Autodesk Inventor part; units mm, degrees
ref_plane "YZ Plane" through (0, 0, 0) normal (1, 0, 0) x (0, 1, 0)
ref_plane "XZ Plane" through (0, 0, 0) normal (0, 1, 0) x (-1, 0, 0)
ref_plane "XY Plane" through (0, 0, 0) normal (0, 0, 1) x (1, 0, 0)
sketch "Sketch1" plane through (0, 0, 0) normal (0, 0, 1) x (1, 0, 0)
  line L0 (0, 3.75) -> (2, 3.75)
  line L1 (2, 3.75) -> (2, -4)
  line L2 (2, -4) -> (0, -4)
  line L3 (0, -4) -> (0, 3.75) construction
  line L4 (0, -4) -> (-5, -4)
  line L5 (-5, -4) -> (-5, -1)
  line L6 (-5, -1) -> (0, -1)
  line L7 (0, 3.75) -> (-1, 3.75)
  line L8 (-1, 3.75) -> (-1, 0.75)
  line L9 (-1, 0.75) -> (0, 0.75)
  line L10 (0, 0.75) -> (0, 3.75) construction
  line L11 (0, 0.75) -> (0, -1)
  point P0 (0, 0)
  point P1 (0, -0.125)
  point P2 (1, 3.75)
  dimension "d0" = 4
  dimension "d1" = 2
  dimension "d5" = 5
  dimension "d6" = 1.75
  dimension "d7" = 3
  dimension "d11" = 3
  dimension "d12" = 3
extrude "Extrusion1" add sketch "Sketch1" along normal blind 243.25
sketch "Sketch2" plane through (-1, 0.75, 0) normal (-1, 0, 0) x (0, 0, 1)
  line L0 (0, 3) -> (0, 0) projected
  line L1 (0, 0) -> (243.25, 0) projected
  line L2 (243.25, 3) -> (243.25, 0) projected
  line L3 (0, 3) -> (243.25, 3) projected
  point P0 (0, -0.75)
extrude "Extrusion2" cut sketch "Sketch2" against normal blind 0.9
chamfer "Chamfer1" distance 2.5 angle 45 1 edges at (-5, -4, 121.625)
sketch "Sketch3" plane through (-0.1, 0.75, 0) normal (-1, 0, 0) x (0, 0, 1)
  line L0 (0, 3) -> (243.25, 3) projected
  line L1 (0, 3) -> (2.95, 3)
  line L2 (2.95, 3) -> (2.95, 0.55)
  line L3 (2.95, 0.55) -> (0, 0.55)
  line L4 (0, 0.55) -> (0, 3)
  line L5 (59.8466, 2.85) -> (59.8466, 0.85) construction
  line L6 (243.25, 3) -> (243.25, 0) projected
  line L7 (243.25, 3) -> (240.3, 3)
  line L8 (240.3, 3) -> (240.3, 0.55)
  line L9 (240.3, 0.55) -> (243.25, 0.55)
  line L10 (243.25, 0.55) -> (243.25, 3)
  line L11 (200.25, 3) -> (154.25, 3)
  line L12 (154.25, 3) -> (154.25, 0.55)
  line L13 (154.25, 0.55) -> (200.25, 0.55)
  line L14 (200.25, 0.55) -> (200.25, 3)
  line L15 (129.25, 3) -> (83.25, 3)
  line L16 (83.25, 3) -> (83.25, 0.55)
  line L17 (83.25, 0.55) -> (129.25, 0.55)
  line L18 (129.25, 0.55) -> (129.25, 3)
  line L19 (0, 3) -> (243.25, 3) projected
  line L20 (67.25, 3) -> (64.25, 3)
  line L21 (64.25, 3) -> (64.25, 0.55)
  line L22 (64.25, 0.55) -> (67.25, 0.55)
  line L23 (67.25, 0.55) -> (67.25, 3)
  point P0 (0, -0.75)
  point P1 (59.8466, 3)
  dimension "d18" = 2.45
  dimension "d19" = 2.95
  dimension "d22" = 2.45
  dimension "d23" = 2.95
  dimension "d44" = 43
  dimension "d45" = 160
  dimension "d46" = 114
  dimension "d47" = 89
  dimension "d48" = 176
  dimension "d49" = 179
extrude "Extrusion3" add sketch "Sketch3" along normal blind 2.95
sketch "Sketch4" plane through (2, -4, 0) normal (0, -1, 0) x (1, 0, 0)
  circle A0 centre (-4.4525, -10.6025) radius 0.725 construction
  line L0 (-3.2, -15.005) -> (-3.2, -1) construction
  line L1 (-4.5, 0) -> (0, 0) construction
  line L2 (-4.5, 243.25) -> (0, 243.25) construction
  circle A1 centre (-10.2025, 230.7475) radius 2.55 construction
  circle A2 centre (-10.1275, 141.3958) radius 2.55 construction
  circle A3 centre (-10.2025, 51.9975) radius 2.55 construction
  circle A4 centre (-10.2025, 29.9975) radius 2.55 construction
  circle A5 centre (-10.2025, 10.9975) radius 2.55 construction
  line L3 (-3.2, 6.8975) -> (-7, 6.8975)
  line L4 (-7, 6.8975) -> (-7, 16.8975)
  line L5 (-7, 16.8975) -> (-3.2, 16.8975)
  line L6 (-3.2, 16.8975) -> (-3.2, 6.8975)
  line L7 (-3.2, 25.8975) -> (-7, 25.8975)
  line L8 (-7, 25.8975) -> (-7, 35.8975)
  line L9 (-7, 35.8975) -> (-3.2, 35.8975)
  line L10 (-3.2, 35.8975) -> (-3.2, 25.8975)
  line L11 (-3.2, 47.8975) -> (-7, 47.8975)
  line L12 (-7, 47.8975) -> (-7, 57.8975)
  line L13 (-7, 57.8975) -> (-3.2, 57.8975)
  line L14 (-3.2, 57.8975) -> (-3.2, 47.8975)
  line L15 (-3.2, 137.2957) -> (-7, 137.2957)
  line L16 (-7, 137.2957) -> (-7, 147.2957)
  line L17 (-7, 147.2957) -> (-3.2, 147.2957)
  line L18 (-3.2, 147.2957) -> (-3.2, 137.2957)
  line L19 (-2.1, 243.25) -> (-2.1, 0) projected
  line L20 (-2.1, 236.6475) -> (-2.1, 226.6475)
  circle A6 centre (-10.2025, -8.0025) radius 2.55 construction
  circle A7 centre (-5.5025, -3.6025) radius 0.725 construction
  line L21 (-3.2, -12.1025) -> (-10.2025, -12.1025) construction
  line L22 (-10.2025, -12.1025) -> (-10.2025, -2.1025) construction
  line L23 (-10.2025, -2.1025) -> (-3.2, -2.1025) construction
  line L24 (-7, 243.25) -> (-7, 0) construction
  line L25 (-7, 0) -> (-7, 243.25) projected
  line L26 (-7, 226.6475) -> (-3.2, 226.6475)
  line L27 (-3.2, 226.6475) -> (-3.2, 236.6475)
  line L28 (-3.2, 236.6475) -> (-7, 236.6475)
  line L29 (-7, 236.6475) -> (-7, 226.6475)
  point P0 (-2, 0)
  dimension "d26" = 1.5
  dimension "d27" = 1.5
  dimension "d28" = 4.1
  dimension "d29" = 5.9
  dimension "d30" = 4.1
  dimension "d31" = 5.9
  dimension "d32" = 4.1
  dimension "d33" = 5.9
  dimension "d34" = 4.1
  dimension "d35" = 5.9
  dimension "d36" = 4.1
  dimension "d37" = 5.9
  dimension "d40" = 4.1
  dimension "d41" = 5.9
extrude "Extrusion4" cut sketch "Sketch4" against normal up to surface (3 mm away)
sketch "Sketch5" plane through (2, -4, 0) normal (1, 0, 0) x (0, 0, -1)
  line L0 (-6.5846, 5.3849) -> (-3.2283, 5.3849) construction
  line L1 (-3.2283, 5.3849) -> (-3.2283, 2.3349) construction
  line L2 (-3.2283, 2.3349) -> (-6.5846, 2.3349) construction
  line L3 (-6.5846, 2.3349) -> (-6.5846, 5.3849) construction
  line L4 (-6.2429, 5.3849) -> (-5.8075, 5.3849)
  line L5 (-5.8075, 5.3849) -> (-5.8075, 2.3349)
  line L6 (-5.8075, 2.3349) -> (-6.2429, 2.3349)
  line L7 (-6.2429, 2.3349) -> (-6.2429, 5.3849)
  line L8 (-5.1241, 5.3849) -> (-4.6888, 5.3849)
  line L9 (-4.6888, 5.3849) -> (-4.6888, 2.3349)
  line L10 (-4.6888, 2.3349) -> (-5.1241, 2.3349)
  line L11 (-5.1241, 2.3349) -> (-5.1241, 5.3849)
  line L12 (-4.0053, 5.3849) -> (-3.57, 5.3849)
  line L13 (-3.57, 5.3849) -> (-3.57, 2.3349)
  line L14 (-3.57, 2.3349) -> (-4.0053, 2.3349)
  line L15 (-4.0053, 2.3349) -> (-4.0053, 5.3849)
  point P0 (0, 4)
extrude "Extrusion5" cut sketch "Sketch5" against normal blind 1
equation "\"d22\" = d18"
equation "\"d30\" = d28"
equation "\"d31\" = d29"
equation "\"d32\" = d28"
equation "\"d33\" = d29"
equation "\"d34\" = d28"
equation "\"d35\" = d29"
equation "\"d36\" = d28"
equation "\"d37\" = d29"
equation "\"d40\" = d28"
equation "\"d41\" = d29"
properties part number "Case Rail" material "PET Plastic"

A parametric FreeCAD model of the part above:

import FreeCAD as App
import Part
import Sketcher

V = App.Vector


def edges_at(feature, points):
    """Names of the edges that pass closest to the given points."""
    edges = feature.Shape.Edges
    near = lambda p: min(range(len(edges)), key=lambda i: edges[i].distToShape(Part.Vertex(*p))[0])
    return sorted({f"Edge{near(p) + 1}" for p in points})


def add_polygon(sketch, points):
    """Adds a closed chain of lines whose ends are joined by coincident constraints."""
    first, n = sketch.GeometryCount, len(points)
    for a, b in zip(points, points[1:] + points[:1]):
        sketch.addGeometry(Part.LineSegment(App.Vector(*a, 0), App.Vector(*b, 0)), False)
    for i in range(n):
        sketch.addConstraint(Sketcher.Constraint("Coincident", first + i, 2, first + (i + 1) % n, 1))

doc = App.newDocument("Part")
body = doc.addObject("PartDesign::Body", "Body")

# Sketch on XY plane
sketch1 = body.newObject("Sketcher::SketchObject", "Sketch")
sketch1.AttachmentSupport = (doc.getObject("XY_Plane"), [""])
sketch1.MapMode = "FlatFace"
add_polygon(sketch1, [(2, 3.8), (-1, 3.8), (-1, 0.8), (0, 0.8), (0, -1), (-5, -1), (-5, -4), (2, -4)])  # lines 0-7
sketch1.addConstraint([
    Sketcher.Constraint("Horizontal", 0),
    Sketcher.Constraint("Vertical", 1),
    Sketcher.Constraint("Horizontal", 2),
    Sketcher.Constraint("Vertical", 3),
    Sketcher.Constraint("Horizontal", 4),
    Sketcher.Constraint("Vertical", 5),
    Sketcher.Constraint("Horizontal", 6),
    Sketcher.Constraint("Vertical", 7),
    Sketcher.Constraint("PointOnObject", 2, 2, -2),
    Sketcher.Constraint("Equal", 0, 1),
    Sketcher.Constraint("Equal", 1, 5),
    Sketcher.Constraint("DistanceX", 0, 2, 0, 1, 3.0),
    Sketcher.Constraint("DistanceX", 4, 2, 4, 1, 5.0),
    Sketcher.Constraint("DistanceY", 5, 2, -1, 1, 4.0),
    Sketcher.Constraint("DistanceX", -1, 1, 6, 2, 2.0),
    Sketcher.Constraint("DistanceY", 3, 2, 3, 1, 1.75),
])
pad1 = body.newObject("PartDesign::Pad", "Pad")
pad1.Profile = sketch1
pad1.Length = 243.25

# Sketch on YZ plane
sketch2 = body.newObject("Sketcher::SketchObject", "Sketch001")
sketch2.AttachmentSupport = (doc.getObject("YZ_Plane"), [""])
sketch2.MapMode = "FlatFace"
sketch2.AttachmentOffset = App.Placement(V(0, 0, -1), App.Rotation())
add_polygon(sketch2, [(3.8, 243.2), (3.8, 0), (0.8, 0), (0.8, 243.2)])  # lines 0-3
sketch2.addConstraint([
    Sketcher.Constraint("Vertical", 0),
    Sketcher.Constraint("Horizontal", 1),
    Sketcher.Constraint("Vertical", 2),
    Sketcher.Constraint("Horizontal", 3),
    Sketcher.Constraint("PointOnObject", 0, 2, -1),
    Sketcher.Constraint("DistanceX", 1, 2, 1, 1, 3.0),
    Sketcher.Constraint("DistanceY", 0, 2, 0, 1, 243.25),
    Sketcher.Constraint("DistanceX", -1, 1, 0, 2, 3.75),
])
pocket1 = body.newObject("PartDesign::Pocket", "Pocket")
pocket1.Profile = sketch2
pocket1.Length = 0.9
pocket1.Reversed = True
doc.recompute()

chamfer = body.newObject("PartDesign::Chamfer", "Chamfer")
chamfer.Base = (pocket1, edges_at(pocket1, [(-5, -4, 121.625)]))
chamfer.Size = 2.5

# Sketch on YZ plane
sketch3 = body.newObject("Sketcher::SketchObject", "Sketch002")
sketch3.AttachmentSupport = (doc.getObject("YZ_Plane"), [""])
sketch3.MapMode = "FlatFace"
sketch3.AttachmentOffset = App.Placement(V(0, 0, -0.1), App.Rotation())
add_polygon(sketch3, [(3.8, 243.2), (3.8, 240.3), (1.3, 240.3), (1.3, 243.2)])  # lines 0-3
add_polygon(sketch3, [(3.8, 200.2), (3.8, 154.2), (1.3, 154.2), (1.3, 200.2)])  # lines 4-7
add_polygon(sketch3, [(3.8, 129.2), (3.8, 83.2), (1.3, 83.2), (1.3, 129.2)])  # lines 8-11
add_polygon(sketch3, [(3.8, 67.2), (3.8, 64.2), (1.3, 64.2), (1.3, 67.2)])  # lines 12-15
add_polygon(sketch3, [(3.8, 3), (3.8, 0), (1.3, 0), (1.3, 3)])  # lines 16-19
sketch3.addConstraint([
    Sketcher.Constraint("Vertical", 0),
    Sketcher.Constraint("Horizontal", 1),
    Sketcher.Constraint("Vertical", 2),
    Sketcher.Constraint("Horizontal", 3),
    Sketcher.Constraint("Vertical", 4),
    Sketcher.Constraint("Horizontal", 5),
    Sketcher.Constraint("Vertical", 6),
    Sketcher.Constraint("Horizontal", 7),
    Sketcher.Constraint("Vertical", 8),
    Sketcher.Constraint("Horizontal", 9),
    Sketcher.Constraint("Vertical", 10),
    Sketcher.Constraint("Horizontal", 11),
    Sketcher.Constraint("Vertical", 12),
    Sketcher.Constraint("Horizontal", 13),
    Sketcher.Constraint("Vertical", 14),
    Sketcher.Constraint("Horizontal", 15),
    Sketcher.Constraint("Vertical", 16),
    Sketcher.Constraint("Horizontal", 17),
    Sketcher.Constraint("Vertical", 18),
    Sketcher.Constraint("Horizontal", 19),
    Sketcher.Constraint("PointOnObject", 16, 2, -1),
    Sketcher.Constraint("Vertical", 3, 2, 4, 2),
    Sketcher.Constraint("Vertical", 2, 2, 5, 2),
    Sketcher.Constraint("Vertical", 7, 2, 8, 2),
    Sketcher.Constraint("Vertical", 6, 2, 9, 2),
    Sketcher.Constraint("Vertical", 11, 2, 12, 2),
    Sketcher.Constraint("Vertical", 10, 2, 13, 2),
    Sketcher.Constraint("Vertical", 15, 2, 16, 2),
    Sketcher.Constraint("Vertical", 14, 2, 17, 2),
    Sketcher.Constraint("Equal", 6, 8),
    Sketcher.Constraint("Equal", 2, 16),
    Sketcher.Constraint("DistanceY", 4, 2, 3, 2, 89.0),
    Sketcher.Constraint("DistanceY", 6, 2, 2, 2, 43.0),
    Sketcher.Constraint("DistanceX", 1, 2, 1, 1, 2.45),
    Sketcher.Constraint("DistanceY", 0, 2, 0, 1, 2.95),
    Sketcher.Constraint("DistanceY", 12, 2, 12, 1, 3.0),
    Sketcher.Constraint("DistanceY", 8, 2, 4, 2, 71.0),
    Sketcher.Constraint("DistanceY", 12, 2, 8, 2, 19.0),
    Sketcher.Constraint("DistanceY", -1, 1, 0, 2, 240.3),
    Sketcher.Constraint("DistanceX", -1, 1, 1, 2, 1.3),
])
pad2 = body.newObject("PartDesign::Pad", "Pad001")
pad2.Profile = sketch3
pad2.Length = 2.95
pad2.Reversed = True

# Sketch on XZ plane
sketch4 = body.newObject("Sketcher::SketchObject", "Sketch003")
sketch4.AttachmentSupport = (doc.getObject("XZ_Plane"), [""])
sketch4.MapMode = "FlatFace"
sketch4.AttachmentOffset = App.Placement(V(0, 0, 4), App.Rotation())
add_polygon(sketch4, [(-5, 236.6), (-5, 226.6), (-1.2, 226.6), (-1.2, 236.6)])  # lines 0-3
add_polygon(sketch4, [(-5, 147.3), (-5, 137.3), (-1.2, 137.3), (-1.2, 147.3)])  # lines 4-7
add_polygon(sketch4, [(-5, 57.9), (-5, 47.9), (-1.2, 47.9), (-1.2, 57.9)])  # lines 8-11
add_polygon(sketch4, [(-5, 35.9), (-5, 25.9), (-1.2, 25.9), (-1.2, 35.9)])  # lines 12-15
add_polygon(sketch4, [(-5, 6.9), (-1.2, 6.9), (-1.2, 16.9), (-5, 16.9)])  # lines 16-19
sketch4.addConstraint([
    Sketcher.Constraint("Vertical", 0),
    Sketcher.Constraint("Horizontal", 1),
    Sketcher.Constraint("Vertical", 2),
    Sketcher.Constraint("Horizontal", 3),
    Sketcher.Constraint("Vertical", 4),
    Sketcher.Constraint("Horizontal", 5),
    Sketcher.Constraint("Vertical", 6),
    Sketcher.Constraint("Horizontal", 7),
    Sketcher.Constraint("Vertical", 8),
    Sketcher.Constraint("Horizontal", 9),
    Sketcher.Constraint("Vertical", 10),
    Sketcher.Constraint("Horizontal", 11),
    Sketcher.Constraint("Vertical", 12),
    Sketcher.Constraint("Horizontal", 13),
    Sketcher.Constraint("Vertical", 14),
    Sketcher.Constraint("Horizontal", 15),
    Sketcher.Constraint("Horizontal", 16),
    Sketcher.Constraint("Vertical", 17),
    Sketcher.Constraint("Horizontal", 18),
    Sketcher.Constraint("Vertical", 19),
    Sketcher.Constraint("Vertical", 3, 2, 4, 2),
    Sketcher.Constraint("Vertical", 2, 2, 5, 2),
    Sketcher.Constraint("Vertical", 7, 2, 8, 2),
    Sketcher.Constraint("Vertical", 6, 2, 9, 2),
    Sketcher.Constraint("Vertical", 11, 2, 12, 2),
    Sketcher.Constraint("Vertical", 10, 2, 13, 2),
    Sketcher.Constraint("Vertical", 14, 2, 16, 2),
    Sketcher.Constraint("Vertical", 15, 2, 18, 2),
    Sketcher.Constraint("Equal", 2, 4),
    Sketcher.Constraint("Equal", 6, 8),
    Sketcher.Constraint("Equal", 10, 12),
    Sketcher.Constraint("Equal", 14, 17),
    Sketcher.Constraint("DistanceY", 0, 2, 0, 1, 10.0),
    Sketcher.Constraint("DistanceX", 1, 1, 1, 2, 3.8),
    Sketcher.Constraint("DistanceX", 0, 2, -1, 1, 5.0),
    Sketcher.Constraint("DistanceY", 12, 2, 8, 2, 22.0),
    Sketcher.Constraint("DistanceY", 16, 2, 13, 2, 19.0),
    Sketcher.Constraint("DistanceY", 8, 2, 0, 2, 178.75),
    Sketcher.Constraint("DistanceY", -1, 1, 0, 2, 226.6475),
    Sketcher.Constraint("DistanceY", -1, 1, 4, 2, 137.2957),
])
pocket2 = body.newObject("PartDesign::Pocket", "Pocket001")
pocket2.Profile = sketch4
pocket2.Length = 3

# Sketch on YZ plane
sketch5 = body.newObject("Sketcher::SketchObject", "Sketch004")
sketch5.AttachmentSupport = (doc.getObject("YZ_Plane"), [""])
sketch5.MapMode = "FlatFace"
sketch5.AttachmentOffset = App.Placement(V(0, 0, 2), App.Rotation())
add_polygon(sketch5, [(1.38, 5.81), (1.38, 6.24), (-1.67, 6.24), (-1.67, 5.81)])  # lines 0-3
add_polygon(sketch5, [(1.38, 4.69), (1.38, 5.12), (-1.67, 5.12), (-1.67, 4.69)])  # lines 4-7
add_polygon(sketch5, [(1.38, 3.57), (1.38, 4.01), (-1.67, 4.01), (-1.67, 3.57)])  # lines 8-11
sketch5.addConstraint([
    Sketcher.Constraint("Vertical", 0),
    Sketcher.Constraint("Horizontal", 1),
    Sketcher.Constraint("Vertical", 2),
    Sketcher.Constraint("Horizontal", 3),
    Sketcher.Constraint("Vertical", 4),
    Sketcher.Constraint("Horizontal", 5),
    Sketcher.Constraint("Vertical", 6),
    Sketcher.Constraint("Horizontal", 7),
    Sketcher.Constraint("Vertical", 8),
    Sketcher.Constraint("Horizontal", 9),
    Sketcher.Constraint("Vertical", 10),
    Sketcher.Constraint("Horizontal", 11),
    Sketcher.Constraint("Vertical", 3, 2, 4, 2),
    Sketcher.Constraint("Vertical", 2, 2, 5, 2),
    Sketcher.Constraint("Vertical", 7, 2, 8, 2),
    Sketcher.Constraint("Vertical", 6, 2, 9, 2),
    Sketcher.Constraint("Equal", 2, 4),
    Sketcher.Constraint("Equal", 6, 8),
    Sketcher.Constraint("DistanceX", 1, 2, 1, 1, 3.05),
    Sketcher.Constraint("DistanceY", -1, 1, 10, 2, 3.57),
    Sketcher.Constraint("DistanceY", 0, 1, 0, 2, 0.4354),
    Sketcher.Constraint("DistanceX", -1, 1, 0, 2, 1.385),
    Sketcher.Constraint("DistanceY", -1, 1, 0, 2, 6.243),
    Sketcher.Constraint("DistanceY", -1, 1, 4, 2, 5.124),
])
pocket3 = body.newObject("PartDesign::Pocket", "Pocket002")
pocket3.Profile = sketch5
pocket3.Length = 1

doc.recompute()
